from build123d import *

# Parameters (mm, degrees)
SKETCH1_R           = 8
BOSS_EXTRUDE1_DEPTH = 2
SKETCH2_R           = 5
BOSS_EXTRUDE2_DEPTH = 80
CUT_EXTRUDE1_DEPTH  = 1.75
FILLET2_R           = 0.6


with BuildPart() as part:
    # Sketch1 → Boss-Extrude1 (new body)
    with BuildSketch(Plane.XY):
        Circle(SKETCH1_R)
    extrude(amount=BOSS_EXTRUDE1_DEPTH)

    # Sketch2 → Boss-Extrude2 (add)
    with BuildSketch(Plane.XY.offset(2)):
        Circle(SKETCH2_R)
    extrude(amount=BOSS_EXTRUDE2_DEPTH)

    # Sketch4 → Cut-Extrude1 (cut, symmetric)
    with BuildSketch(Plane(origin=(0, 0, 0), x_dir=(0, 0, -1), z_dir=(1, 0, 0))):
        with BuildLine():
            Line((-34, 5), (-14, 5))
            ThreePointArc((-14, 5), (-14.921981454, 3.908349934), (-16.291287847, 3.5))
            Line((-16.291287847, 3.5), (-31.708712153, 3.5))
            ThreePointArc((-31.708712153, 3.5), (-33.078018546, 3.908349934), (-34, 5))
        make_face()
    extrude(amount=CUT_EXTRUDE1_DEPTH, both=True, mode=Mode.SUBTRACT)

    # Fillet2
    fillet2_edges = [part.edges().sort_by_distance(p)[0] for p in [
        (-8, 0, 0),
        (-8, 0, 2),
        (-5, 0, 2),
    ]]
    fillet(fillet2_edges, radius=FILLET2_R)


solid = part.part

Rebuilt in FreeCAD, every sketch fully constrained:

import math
import FreeCAD as App
import Part
import Sketcher


def edges_at(feature, points):
    """Names of the edges that pass closest to the given points."""
    edges = feature.Shape.Edges
    near = lambda p: min(range(len(edges)), key=lambda i: edges[i].distToShape(Part.Vertex(*p))[0])
    return sorted({f"Edge{near(p) + 1}" for p in points})

doc = App.newDocument("Part")
body = doc.addObject("PartDesign::Body", "Body")

# Sketch on XY plane
sketch1 = body.newObject("Sketcher::SketchObject", "Sketch")
sketch1.AttachmentSupport = (doc.getObject("XY_Plane"), [""])
sketch1.MapMode = "FlatFace"
sketch1.addGeometry(Part.Circle(App.Vector(0, 0, 0), App.Vector(0, 0, 1), 8), False)
sketch1.addConstraint([
    Sketcher.Constraint("Coincident", 0, 3, -1, 1),
    Sketcher.Constraint("Diameter", 0, 16.0),
])
pad1 = body.newObject("PartDesign::Pad", "Pad")
pad1.Profile = sketch1
pad1.Length = 2

# Sketch on XY plane
sketch2 = body.newObject("Sketcher::SketchObject", "Sketch001")
sketch2.AttachmentSupport = (doc.getObject("XY_Plane"), [""])
sketch2.MapMode = "FlatFace"
sketch2.AttachmentOffset = App.Placement(App.Vector(0, 0, 2), App.Rotation())
sketch2.addGeometry(Part.Circle(App.Vector(0, 0, 0), App.Vector(0, 0, 1), 5), False)
sketch2.addConstraint([
    Sketcher.Constraint("Coincident", 0, 3, -1, 1),
    Sketcher.Constraint("Diameter", 0, 10.0),
])
pad2 = body.newObject("PartDesign::Pad", "Pad001")
pad2.Profile = sketch2
pad2.Length = 80

# Sketch on YZ plane
sketch3 = body.newObject("Sketcher::SketchObject", "Sketch002")
sketch3.AttachmentSupport = (doc.getObject("YZ_Plane"), [""])
sketch3.MapMode = "FlatFace"
sketch3.addGeometry([
    Part.LineSegment(App.Vector(5, 14, 0), App.Vector(5, 34, 0)),
    Part.ArcOfCircle(Part.Circle(App.Vector(6, 31.708712, 0), App.Vector(0, 0, 1), 2.5), math.radians(113.578179), math.radians(180)),
    Part.LineSegment(App.Vector(3.5, 31.708712, 0), App.Vector(3.5, 16.291288, 0)),
    Part.ArcOfCircle(Part.Circle(App.Vector(6, 16.291288, 0), App.Vector(0, 0, 1), 2.5), math.radians(-180), math.radians(-113.578179)),
], False)
sketch3.addConstraint([
    Sketcher.Constraint("Coincident", 0, 2, 1, 1),
    Sketcher.Constraint("Tangent", 1, 2, 2, 1),
    Sketcher.Constraint("Tangent", 2, 2, 3, 1),
    Sketcher.Constraint("Coincident", 3, 2, 0, 1),
    Sketcher.Constraint("Vertical", 0),
    Sketcher.Constraint("Vertical", 2),
    Sketcher.Constraint("Equal", 1, 3),
    Sketcher.Constraint("Radius", 1, 2.5),
    Sketcher.Constraint("DistanceY", 0, 1, 0, 2, 20.0),
    Sketcher.Constraint("DistanceX", -1, 1, 1, 3, 6.0),
    Sketcher.Constraint("DistanceX", -1, 1, 0, 2, 5.0),
    Sketcher.Constraint("DistanceY", -1, 1, 0, 2, 34.0),
])
pocket1 = body.newObject("PartDesign::Pocket", "Pocket")
pocket1.Profile = sketch3
pocket1.Length = 3.5
pocket1.Midplane = True
doc.recompute()

fillet = body.newObject("PartDesign::Fillet", "Fillet")
fillet.Base = (pocket1, edges_at(pocket1, [(-8, 0, 0), (-8, 0, 2), (-5, 0, 2)]))
fillet.Radius = 0.6

doc.recompute()
